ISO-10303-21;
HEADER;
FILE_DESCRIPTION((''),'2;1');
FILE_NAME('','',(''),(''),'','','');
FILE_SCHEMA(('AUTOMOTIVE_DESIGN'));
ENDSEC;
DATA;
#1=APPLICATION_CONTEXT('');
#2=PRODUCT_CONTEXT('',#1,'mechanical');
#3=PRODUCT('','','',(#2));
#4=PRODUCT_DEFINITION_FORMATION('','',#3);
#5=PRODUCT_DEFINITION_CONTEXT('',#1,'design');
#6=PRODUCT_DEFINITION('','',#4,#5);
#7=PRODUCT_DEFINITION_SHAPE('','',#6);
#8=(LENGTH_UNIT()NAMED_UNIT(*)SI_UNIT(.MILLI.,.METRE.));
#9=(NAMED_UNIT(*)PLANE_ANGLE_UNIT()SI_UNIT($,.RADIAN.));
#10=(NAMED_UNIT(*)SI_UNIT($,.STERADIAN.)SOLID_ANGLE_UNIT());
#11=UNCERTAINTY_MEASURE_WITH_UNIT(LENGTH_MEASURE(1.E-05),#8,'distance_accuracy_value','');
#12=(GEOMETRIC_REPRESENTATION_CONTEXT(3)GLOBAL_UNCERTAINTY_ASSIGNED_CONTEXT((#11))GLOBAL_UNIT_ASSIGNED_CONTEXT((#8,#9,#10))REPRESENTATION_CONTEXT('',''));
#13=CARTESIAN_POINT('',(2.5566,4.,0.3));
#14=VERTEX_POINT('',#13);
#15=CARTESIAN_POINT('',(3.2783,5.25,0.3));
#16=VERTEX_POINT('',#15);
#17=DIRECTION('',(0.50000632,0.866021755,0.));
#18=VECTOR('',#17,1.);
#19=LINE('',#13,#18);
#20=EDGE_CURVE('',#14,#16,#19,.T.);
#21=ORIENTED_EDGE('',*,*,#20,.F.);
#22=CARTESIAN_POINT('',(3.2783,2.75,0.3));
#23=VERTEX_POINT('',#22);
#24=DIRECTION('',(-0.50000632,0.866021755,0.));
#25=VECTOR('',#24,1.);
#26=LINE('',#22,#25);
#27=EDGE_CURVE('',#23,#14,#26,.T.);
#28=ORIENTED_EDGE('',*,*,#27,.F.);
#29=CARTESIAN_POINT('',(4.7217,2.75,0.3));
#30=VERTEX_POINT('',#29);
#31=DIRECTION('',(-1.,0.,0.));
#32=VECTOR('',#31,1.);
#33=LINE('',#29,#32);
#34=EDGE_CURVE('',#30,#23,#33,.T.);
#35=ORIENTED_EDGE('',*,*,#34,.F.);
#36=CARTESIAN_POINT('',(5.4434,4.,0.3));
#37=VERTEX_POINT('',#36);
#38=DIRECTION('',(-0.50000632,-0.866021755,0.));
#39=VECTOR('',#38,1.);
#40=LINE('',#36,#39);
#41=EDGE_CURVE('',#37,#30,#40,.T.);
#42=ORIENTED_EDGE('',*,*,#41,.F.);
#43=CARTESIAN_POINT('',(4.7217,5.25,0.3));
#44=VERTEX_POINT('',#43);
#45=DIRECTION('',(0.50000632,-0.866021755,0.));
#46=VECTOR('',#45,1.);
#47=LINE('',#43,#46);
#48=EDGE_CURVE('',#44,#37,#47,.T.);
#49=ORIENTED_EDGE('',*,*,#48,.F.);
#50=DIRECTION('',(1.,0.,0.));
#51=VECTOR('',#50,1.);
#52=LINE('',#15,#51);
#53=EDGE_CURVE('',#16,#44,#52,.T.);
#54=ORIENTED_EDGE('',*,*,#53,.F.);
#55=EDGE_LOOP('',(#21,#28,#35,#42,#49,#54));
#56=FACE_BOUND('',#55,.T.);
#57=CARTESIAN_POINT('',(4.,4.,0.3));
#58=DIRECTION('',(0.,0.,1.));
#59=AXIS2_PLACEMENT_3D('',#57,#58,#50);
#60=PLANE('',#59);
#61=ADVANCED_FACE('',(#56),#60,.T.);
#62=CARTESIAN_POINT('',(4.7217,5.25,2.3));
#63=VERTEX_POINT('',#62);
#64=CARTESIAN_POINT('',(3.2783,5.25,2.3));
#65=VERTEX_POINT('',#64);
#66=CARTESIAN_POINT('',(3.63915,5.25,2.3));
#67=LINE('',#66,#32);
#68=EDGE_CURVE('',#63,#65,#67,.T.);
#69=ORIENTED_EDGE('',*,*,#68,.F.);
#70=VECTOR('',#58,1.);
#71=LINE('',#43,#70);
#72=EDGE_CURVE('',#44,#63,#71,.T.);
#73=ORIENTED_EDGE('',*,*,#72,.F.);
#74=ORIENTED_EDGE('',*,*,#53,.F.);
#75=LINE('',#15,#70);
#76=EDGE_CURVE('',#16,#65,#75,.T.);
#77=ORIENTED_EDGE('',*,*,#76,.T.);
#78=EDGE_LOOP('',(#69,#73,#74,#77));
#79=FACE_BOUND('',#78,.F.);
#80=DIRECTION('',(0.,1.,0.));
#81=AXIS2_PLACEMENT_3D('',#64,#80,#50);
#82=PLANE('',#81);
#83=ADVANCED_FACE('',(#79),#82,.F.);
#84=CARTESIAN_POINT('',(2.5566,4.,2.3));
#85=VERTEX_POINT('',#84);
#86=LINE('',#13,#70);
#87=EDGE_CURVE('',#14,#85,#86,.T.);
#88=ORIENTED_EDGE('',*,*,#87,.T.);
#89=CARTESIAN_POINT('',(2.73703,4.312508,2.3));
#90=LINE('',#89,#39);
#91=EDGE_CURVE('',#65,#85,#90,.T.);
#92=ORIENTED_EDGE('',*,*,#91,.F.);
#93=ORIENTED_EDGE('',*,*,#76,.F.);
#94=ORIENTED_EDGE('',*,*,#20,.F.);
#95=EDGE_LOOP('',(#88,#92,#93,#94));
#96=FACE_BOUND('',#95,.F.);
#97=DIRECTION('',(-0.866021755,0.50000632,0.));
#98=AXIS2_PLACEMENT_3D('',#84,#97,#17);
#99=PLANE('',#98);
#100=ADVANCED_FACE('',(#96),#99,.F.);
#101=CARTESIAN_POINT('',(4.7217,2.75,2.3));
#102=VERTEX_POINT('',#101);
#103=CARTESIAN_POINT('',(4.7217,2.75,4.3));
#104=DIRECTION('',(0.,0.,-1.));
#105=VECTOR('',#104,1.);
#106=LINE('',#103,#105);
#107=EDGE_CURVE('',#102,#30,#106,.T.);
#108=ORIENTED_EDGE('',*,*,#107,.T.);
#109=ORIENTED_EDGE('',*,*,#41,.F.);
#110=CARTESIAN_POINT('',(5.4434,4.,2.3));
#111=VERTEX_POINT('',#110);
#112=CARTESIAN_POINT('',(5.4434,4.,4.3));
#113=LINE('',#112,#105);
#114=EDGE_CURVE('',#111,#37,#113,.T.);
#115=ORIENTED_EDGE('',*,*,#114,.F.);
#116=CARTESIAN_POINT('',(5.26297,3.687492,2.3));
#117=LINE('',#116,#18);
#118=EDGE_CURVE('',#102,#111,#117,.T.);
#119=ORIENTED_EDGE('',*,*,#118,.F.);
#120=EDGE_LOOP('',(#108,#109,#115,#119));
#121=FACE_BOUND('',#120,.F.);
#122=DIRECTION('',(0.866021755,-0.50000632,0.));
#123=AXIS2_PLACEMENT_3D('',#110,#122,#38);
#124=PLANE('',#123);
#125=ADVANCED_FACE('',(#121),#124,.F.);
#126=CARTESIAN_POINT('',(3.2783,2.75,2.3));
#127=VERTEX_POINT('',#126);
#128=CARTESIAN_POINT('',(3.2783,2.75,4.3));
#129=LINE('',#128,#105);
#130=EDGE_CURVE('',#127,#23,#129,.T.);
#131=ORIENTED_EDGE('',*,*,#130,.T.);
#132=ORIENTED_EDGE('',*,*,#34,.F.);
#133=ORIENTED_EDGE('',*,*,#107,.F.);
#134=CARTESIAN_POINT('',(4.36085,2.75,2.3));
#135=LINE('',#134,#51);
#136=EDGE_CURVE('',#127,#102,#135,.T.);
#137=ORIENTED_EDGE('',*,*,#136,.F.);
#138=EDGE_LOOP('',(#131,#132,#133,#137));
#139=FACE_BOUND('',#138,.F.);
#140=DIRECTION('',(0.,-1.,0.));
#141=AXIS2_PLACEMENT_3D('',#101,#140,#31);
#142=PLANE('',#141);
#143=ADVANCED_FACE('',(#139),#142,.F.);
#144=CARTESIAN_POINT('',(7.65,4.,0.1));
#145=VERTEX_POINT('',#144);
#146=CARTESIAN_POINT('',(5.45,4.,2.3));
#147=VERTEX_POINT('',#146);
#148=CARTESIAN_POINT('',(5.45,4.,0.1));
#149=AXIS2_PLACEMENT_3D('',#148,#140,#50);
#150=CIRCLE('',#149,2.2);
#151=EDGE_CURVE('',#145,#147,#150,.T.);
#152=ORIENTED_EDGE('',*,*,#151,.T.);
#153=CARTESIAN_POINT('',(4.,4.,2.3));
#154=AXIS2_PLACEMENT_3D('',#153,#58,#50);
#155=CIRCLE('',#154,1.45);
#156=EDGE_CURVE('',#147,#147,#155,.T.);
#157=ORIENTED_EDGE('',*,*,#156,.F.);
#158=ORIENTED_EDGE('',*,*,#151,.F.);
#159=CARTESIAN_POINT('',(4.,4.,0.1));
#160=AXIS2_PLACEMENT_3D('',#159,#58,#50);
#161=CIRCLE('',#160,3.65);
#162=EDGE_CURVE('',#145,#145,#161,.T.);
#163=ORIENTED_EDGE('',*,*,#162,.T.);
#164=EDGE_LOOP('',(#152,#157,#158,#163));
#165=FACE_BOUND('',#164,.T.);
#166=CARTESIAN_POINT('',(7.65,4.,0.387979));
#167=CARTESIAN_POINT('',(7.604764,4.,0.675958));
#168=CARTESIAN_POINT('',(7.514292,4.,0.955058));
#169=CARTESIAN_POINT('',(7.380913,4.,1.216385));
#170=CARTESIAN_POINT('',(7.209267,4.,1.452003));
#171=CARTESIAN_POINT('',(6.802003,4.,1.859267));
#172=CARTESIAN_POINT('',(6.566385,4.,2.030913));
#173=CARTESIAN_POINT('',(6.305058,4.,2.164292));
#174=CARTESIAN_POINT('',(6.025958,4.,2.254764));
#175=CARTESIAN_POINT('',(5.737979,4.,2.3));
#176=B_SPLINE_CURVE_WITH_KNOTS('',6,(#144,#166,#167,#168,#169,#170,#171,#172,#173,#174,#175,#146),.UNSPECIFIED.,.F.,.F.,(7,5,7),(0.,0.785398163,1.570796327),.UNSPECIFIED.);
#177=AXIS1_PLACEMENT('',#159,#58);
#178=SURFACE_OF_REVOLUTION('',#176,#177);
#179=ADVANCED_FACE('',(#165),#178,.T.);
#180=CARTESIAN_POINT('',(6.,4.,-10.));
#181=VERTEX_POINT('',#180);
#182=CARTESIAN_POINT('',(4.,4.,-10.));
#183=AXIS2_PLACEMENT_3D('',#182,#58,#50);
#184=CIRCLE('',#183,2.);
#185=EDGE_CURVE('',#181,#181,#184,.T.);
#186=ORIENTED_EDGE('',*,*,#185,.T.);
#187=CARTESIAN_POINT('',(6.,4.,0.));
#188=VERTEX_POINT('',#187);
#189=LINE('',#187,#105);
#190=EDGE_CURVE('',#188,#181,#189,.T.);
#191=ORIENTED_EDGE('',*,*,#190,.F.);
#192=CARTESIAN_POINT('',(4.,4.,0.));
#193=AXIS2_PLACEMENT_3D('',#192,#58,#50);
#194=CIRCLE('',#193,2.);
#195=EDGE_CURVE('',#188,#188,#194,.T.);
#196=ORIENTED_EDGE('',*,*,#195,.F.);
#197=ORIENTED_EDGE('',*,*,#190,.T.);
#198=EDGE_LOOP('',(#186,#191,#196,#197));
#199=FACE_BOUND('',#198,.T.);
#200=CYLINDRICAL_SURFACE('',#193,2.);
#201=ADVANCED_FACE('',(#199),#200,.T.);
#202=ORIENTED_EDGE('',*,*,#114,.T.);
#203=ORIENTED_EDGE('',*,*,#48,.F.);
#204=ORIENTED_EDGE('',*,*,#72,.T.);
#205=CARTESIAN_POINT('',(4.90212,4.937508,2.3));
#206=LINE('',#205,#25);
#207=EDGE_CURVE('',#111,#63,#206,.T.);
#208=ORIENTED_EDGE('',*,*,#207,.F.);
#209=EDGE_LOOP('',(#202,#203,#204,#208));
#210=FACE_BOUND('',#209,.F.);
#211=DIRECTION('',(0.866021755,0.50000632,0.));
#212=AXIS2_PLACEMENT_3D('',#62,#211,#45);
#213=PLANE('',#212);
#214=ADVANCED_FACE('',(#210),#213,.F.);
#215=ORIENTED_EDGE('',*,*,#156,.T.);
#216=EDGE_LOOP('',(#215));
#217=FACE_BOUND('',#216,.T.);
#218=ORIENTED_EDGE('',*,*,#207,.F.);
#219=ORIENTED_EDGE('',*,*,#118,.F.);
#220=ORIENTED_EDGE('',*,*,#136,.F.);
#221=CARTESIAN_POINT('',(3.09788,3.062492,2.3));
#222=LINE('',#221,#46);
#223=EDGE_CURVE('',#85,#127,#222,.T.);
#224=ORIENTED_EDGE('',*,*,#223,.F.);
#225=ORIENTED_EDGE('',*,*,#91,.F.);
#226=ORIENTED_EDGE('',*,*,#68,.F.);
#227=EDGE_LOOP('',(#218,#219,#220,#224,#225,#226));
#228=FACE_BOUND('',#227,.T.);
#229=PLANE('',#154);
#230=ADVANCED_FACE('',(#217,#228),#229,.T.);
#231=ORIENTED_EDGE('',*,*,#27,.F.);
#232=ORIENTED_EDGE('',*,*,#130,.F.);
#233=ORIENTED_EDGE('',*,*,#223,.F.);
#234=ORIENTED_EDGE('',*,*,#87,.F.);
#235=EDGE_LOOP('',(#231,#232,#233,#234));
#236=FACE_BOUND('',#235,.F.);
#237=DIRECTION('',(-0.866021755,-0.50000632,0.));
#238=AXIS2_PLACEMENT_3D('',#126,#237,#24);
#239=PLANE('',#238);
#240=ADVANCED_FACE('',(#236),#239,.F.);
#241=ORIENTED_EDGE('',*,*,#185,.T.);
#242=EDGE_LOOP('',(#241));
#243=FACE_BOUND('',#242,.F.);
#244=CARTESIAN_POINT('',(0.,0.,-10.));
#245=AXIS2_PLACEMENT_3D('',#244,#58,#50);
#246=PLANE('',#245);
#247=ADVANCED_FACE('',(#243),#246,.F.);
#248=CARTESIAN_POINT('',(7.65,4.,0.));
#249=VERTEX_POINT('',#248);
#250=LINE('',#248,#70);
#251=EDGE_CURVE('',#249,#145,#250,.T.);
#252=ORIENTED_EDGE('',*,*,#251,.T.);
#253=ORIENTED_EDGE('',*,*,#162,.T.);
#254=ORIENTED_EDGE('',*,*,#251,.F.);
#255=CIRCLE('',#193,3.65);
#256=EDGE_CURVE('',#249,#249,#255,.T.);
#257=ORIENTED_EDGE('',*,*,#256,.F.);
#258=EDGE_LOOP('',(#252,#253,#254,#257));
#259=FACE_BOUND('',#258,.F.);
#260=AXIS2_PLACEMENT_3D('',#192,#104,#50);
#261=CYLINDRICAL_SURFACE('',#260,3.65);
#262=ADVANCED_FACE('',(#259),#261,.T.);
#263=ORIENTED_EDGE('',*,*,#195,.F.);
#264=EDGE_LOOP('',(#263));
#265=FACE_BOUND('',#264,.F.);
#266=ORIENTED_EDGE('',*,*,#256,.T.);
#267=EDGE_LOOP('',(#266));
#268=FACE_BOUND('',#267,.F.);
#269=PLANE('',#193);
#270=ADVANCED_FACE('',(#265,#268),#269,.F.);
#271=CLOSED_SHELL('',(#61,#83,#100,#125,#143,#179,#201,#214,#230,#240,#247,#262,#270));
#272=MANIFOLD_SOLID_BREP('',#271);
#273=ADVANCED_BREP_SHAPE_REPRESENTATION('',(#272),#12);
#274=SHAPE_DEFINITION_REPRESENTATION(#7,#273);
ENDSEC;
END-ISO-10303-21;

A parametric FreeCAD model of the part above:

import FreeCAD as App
import Part
import Sketcher

V = App.Vector
Q = App.Units.Quantity


def edges_at(feature, points):
    """Names of the edges that pass closest to the given points."""
    edges = feature.Shape.Edges
    near = lambda p: min(range(len(edges)), key=lambda i: edges[i].distToShape(Part.Vertex(*p))[0])
    return sorted({f"Edge{near(p) + 1}" for p in points})


def add_polygon(sketch, points):
    """Adds a closed chain of lines whose ends are joined by coincident constraints."""
    first, n = sketch.GeometryCount, len(points)
    for a, b in zip(points, points[1:] + points[:1]):
        sketch.addGeometry(Part.LineSegment(App.Vector(*a, 0), App.Vector(*b, 0)), False)
    for i in range(n):
        sketch.addConstraint(Sketcher.Constraint("Coincident", first + i, 2, first + (i + 1) % n, 1))

doc = App.newDocument("Part")
params = doc.addObject("Spreadsheet::Sheet", "Params")
for row, (alias, value) in enumerate([
    ("sketch1_diameter", "4 mm"),
    ("pad1_length", "10 mm"),
    ("sketch2_diameter", "7.3 mm"),
    ("pad2_length", "2.3 mm"),
    ("fillet_radius", "2.2 mm"),
    ("pocket1_length", "4 mm"),
], start=1):
    params.set(f"A{row}", alias)
    params.set(f"B{row}", "=" + value)
    params.setAlias(f"B{row}", alias)

body = doc.addObject("PartDesign::Body", "Body")

# Sketch on XY plane
sketch1 = doc.addObject("Sketcher::SketchObject", "Sketch")
body.addObject(sketch1)
sketch1.AttachmentSupport = (doc.XY_Plane, [""])
sketch1.MapMode = "FlatFace"
sketch1.addGeometry(Part.Circle(V(4, 4, 0), V(0, 0, 1), 2), False)
sketch1.addConstraint([
    Sketcher.Constraint("Diameter", 0, 4.0),
    Sketcher.Constraint("DistanceX", -1, 1, 0, 3, 4.0),
    Sketcher.Constraint("DistanceY", -1, 1, 0, 3, 4.0),
])
sketch1.setExpression("Constraints[0]", "Params.sketch1_diameter")
pad1 = doc.addObject("PartDesign::Pad", "Pad")
body.addObject(pad1)
pad1.Profile = sketch1
pad1.setExpression("Length", "Params.pad1_length")
pad1.Reversed = True

# Sketch on XY plane
sketch2 = doc.addObject("Sketcher::SketchObject", "Sketch001")
body.addObject(sketch2)
sketch2.AttachmentSupport = (doc.XY_Plane, [""])
sketch2.MapMode = "FlatFace"
sketch2.addGeometry(Part.Circle(V(4, 4, 0), V(0, 0, 1), 3.6), False)
sketch2.addConstraint([
    Sketcher.Constraint("Diameter", 0, 7.3),
    Sketcher.Constraint("DistanceX", -1, 1, 0, 3, 4.0),
    Sketcher.Constraint("DistanceY", -1, 1, 0, 3, 4.0),
])
sketch2.setExpression("Constraints[0]", "Params.sketch2_diameter")
pad2 = doc.addObject("PartDesign::Pad", "Pad001")
body.addObject(pad2)
pad2.Profile = sketch2
pad2.setExpression("Length", "Params.pad2_length")
doc.recompute()

fillet = doc.addObject("PartDesign::Fillet", "Fillet")
body.addObject(fillet)
fillet.Base = (pad2, edges_at(pad2, [(0.35, 4, 2.3)]))
fillet.setExpression("Radius", "Params.fillet_radius")

# Sketch on XY plane
sketch3 = doc.addObject("Sketcher::SketchObject", "Sketch002")
body.addObject(sketch3)
sketch3.AttachmentSupport = (doc.XY_Plane, [""])
sketch3.MapMode = "FlatFace"
sketch3.AttachmentOffset = App.Placement(V(0, 0, 2.3), App.Rotation())
add_polygon(sketch3, [(5.4, 4), (4.7, 5.2), (3.3, 5.2), (2.6, 4), (3.3, 2.8), (4.7, 2.8)])  # lines 0-5
sketch3.addConstraint([
    Sketcher.Constraint("Horizontal", 1),
    Sketcher.Constraint("Horizontal", 4),
    Sketcher.Constraint("Parallel", 0, 3),
    Sketcher.Constraint("Parallel", 2, 5),
    Sketcher.Constraint("Horizontal", 2, 2, 5, 2),
    Sketcher.Constraint("Vertical", 1, 2, 3, 2),
    Sketcher.Constraint("Vertical", 0, 2, 4, 2),
    Sketcher.Constraint("DistanceY", 3, 2, 1, 2, 2.5),
    Sketcher.Constraint("Angle", 0, Q("120.0004 deg")),
    Sketcher.Constraint("DistanceY", -1, 1, 2, 2, 4.0),
    Sketcher.Constraint("DistanceX", 1, 2, 1, 1, 1.4434),
    Sketcher.Constraint("DistanceX", -1, 1, 0, 2, 4.7217),
])
pocket1 = doc.addObject("PartDesign::Pocket", "Pocket")
body.addObject(pocket1)
pocket1.Profile = sketch3
pocket1.setExpression("Length", "Params.pocket1_length")
pocket1.Midplane = True

doc.recompute()
